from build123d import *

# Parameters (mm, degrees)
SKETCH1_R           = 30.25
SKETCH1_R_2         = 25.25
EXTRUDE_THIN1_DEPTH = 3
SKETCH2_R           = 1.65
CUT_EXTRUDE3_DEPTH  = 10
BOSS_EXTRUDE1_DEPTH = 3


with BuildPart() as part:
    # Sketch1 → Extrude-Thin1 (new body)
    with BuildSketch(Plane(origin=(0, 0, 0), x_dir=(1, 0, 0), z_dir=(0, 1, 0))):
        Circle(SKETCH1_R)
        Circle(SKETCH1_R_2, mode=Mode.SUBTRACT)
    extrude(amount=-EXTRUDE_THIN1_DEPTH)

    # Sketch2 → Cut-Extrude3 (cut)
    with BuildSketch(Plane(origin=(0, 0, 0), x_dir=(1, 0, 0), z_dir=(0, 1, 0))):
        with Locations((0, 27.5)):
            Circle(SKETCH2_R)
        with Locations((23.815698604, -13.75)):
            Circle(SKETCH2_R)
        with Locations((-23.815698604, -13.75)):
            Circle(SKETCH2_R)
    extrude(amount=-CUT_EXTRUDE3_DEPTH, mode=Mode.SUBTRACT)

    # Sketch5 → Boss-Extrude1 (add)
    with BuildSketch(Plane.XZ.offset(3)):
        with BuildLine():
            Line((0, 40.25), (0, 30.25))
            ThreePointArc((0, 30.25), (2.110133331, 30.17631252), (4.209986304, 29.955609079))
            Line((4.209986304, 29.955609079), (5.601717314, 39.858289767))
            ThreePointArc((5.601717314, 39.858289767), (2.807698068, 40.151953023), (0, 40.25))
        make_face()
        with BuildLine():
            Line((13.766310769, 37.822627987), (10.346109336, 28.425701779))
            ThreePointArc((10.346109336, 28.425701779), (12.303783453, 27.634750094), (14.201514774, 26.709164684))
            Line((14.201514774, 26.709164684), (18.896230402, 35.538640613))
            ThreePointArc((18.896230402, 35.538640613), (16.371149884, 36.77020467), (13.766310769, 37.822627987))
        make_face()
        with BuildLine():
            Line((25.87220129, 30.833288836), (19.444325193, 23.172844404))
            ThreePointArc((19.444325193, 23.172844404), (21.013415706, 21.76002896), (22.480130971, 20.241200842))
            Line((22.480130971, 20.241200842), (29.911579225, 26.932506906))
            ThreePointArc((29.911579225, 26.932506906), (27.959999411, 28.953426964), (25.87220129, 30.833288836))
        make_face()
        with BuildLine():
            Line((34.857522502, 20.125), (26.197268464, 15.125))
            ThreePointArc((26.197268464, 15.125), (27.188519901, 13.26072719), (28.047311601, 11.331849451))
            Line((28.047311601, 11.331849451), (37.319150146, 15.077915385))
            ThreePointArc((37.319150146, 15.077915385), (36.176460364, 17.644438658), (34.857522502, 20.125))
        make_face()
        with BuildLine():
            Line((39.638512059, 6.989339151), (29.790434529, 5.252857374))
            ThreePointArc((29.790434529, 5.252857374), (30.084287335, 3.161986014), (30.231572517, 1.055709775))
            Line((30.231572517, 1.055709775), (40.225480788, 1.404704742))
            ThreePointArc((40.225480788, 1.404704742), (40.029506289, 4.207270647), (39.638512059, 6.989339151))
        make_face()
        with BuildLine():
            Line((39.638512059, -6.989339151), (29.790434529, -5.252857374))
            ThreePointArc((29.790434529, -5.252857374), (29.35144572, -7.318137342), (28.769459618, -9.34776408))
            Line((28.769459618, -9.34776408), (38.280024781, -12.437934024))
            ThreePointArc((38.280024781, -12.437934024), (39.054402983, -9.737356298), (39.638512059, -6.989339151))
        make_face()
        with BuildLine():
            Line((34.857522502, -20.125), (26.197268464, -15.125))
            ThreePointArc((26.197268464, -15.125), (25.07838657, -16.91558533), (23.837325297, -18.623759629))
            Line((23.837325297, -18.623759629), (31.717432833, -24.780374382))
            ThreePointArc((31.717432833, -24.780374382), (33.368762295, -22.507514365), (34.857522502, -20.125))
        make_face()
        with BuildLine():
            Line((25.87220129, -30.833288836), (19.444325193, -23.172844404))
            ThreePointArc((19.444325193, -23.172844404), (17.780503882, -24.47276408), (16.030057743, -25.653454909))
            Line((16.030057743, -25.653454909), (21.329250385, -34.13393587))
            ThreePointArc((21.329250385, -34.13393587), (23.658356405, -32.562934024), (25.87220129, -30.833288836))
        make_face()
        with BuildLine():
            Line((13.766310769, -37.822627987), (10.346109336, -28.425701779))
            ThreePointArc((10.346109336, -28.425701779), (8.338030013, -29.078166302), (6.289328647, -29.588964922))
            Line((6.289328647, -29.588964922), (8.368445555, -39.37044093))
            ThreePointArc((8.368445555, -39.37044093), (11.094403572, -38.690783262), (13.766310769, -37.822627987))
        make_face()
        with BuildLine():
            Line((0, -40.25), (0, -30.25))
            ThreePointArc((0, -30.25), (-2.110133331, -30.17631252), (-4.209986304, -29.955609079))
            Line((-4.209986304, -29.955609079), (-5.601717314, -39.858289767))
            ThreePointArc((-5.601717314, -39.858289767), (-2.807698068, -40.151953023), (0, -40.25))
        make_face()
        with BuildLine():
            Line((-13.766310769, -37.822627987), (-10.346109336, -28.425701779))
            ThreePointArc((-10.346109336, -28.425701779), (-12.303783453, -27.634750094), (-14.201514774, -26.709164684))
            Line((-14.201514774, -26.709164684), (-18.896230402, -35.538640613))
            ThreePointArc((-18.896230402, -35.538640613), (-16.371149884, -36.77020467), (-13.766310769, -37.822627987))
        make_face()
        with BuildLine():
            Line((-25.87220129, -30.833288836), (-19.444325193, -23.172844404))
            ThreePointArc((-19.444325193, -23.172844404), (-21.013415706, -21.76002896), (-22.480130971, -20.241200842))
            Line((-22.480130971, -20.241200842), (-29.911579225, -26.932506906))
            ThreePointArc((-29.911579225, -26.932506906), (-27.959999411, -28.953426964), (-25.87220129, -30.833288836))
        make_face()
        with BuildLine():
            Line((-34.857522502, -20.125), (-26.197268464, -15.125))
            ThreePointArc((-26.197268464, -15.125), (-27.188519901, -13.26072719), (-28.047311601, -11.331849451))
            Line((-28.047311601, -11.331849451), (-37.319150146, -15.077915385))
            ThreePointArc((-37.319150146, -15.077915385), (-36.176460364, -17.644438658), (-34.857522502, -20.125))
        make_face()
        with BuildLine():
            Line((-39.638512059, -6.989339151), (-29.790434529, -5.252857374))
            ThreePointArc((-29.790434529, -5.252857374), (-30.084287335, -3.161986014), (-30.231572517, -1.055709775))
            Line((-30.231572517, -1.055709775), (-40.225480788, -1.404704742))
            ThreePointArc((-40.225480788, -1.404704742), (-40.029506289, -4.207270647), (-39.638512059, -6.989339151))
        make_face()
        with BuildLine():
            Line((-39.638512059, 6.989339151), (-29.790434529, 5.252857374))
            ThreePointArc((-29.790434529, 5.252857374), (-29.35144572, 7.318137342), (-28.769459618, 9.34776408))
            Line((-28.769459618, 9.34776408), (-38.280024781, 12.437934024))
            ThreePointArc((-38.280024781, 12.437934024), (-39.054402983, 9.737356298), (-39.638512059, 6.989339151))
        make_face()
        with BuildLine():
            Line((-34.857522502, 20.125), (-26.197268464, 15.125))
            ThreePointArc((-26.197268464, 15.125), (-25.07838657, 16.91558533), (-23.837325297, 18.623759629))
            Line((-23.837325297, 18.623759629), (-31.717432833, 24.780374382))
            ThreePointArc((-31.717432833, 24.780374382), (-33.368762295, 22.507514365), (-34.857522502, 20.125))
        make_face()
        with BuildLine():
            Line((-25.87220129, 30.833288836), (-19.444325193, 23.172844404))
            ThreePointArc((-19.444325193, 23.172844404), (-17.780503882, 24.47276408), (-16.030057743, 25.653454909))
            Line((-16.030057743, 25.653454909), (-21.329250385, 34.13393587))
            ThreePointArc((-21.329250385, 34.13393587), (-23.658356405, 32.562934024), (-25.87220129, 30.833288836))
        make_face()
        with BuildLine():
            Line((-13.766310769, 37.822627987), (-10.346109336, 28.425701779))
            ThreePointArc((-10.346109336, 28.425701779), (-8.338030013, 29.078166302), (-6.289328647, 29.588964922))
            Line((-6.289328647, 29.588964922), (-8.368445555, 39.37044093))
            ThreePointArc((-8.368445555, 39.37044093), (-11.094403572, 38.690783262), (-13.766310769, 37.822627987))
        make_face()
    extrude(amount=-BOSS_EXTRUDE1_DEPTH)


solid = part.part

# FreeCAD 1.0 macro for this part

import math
import FreeCAD as App
import Part
import Sketcher
from FreeCAD import Vector
Q = App.Units.Quantity

doc = App.newDocument("Part")
body = doc.addObject("PartDesign::Body", "Body")

sketch1 = doc.addObject("Sketcher::SketchObject", "Sketch")
body.addObject(sketch1)
sketch1.AttachmentSupport = (doc.XZ_Plane, [""])
sketch1.MapMode = "FlatFace"
sketch1.addGeometry(Part.Circle(Vector(0, 0, 0), Vector(0, 0, 1), 30.25), False)
sketch1.addGeometry(Part.Circle(Vector(0, 0, 0), Vector(0, 0, 1), 25.25), False)
sketch1.addConstraint(Sketcher.Constraint("Coincident", 0, 3, -1, 1))
sketch1.addConstraint(Sketcher.Constraint("Coincident", 1, 3, -1, 1))
sketch1.addConstraint(Sketcher.Constraint("Diameter", 0, 60.5))
sketch1.addConstraint(Sketcher.Constraint("Diameter", 1, 50.5))
pad1 = doc.addObject("PartDesign::Pad", "Pad")
body.addObject(pad1)
pad1.Profile = sketch1
pad1.Length = 3

sketch2 = doc.addObject("Sketcher::SketchObject", "Sketch001")
body.addObject(sketch2)
sketch2.AttachmentSupport = (doc.XZ_Plane, [""])
sketch2.MapMode = "FlatFace"
sketch2.addGeometry(Part.Circle(Vector(0, -27.5, 0), Vector(0, 0, 1), 1.65), False)
sketch2.addGeometry(Part.Circle(Vector(23.815699, 13.75, 0), Vector(0, 0, 1), 1.65), False)
sketch2.addGeometry(Part.Circle(Vector(-23.815699, 13.75, 0), Vector(0, 0, 1), 1.65), False)
sketch2.addConstraint(Sketcher.Constraint("Equal", 0, 1))
sketch2.addConstraint(Sketcher.Constraint("Equal", 1, 2))
sketch2.addConstraint(Sketcher.Constraint("Symmetric", 1, 3, 2, 3, -2))
sketch2.addConstraint(Sketcher.Constraint("PointOnObject", 0, 3, -2))
sketch2.addConstraint(Sketcher.Constraint("Diameter", 0, 3.3))
sketch2.addConstraint(Sketcher.Constraint("DistanceY", 0, 3, -1, 1, 27.5))
sketch2.addConstraint(Sketcher.Constraint("DistanceY", -1, 1, 1, 3, 13.75))
sketch2.addConstraint(Sketcher.Constraint("DistanceX", -1, 1, 1, 3, 23.815699))
pocket1 = doc.addObject("PartDesign::Pocket", "Pocket")
body.addObject(pocket1)
pocket1.Profile = sketch2
pocket1.Length = 10
pocket1.Reversed = True

sketch3 = doc.addObject("Sketcher::SketchObject", "Sketch002")
body.addObject(sketch3)
sketch3.AttachmentSupport = (doc.XZ_Plane, [""])
sketch3.MapMode = "FlatFace"
sketch3.AttachmentOffset = App.Placement(Vector(0, 0, 3), App.Rotation())
sketch3.addGeometry(Part.LineSegment(Vector(0, 40.25, 0), Vector(0, 30.25, 0)), False)
sketch3.addGeometry(Part.ArcOfCircle(Part.Circle(Vector(0, 0, 0), Vector(0, 0, 1), 30.25), math.radians(82), math.radians(90)), False)
sketch3.addGeometry(Part.LineSegment(Vector(4.209986, 29.955609, 0), Vector(5.601717, 39.85829, 0)), False)
sketch3.addGeometry(Part.ArcOfCircle(Part.Circle(Vector(0, 0, 0), Vector(0, 0, 1), 40.25), math.radians(82), math.radians(90)), False)
sketch3.addGeometry(Part.LineSegment(Vector(13.766311, 37.822628, 0), Vector(10.346109, 28.425702, 0)), False)
sketch3.addGeometry(Part.ArcOfCircle(Part.Circle(Vector(0, 0, 0), Vector(0, 0, 1), 30.25), math.radians(62), math.radians(70)), False)
sketch3.addGeometry(Part.LineSegment(Vector(14.201515, 26.709165, 0), Vector(18.89623, 35.538641, 0)), False)
sketch3.addGeometry(Part.ArcOfCircle(Part.Circle(Vector(0, 0, 0), Vector(0, 0, 1), 40.25), math.radians(62), math.radians(70)), False)
sketch3.addGeometry(Part.LineSegment(Vector(25.872201, 30.833289, 0), Vector(19.444325, 23.172844, 0)), False)
sketch3.addGeometry(Part.ArcOfCircle(Part.Circle(Vector(0, 0, 0), Vector(0, 0, 1), 30.25), math.radians(42), math.radians(50)), False)
sketch3.addGeometry(Part.LineSegment(Vector(22.480131, 20.241201, 0), Vector(29.911579, 26.932507, 0)), False)
sketch3.addGeometry(Part.ArcOfCircle(Part.Circle(Vector(0, 0, 0), Vector(0, 0, 1), 40.25), math.radians(42), math.radians(50)), False)
sketch3.addGeometry(Part.LineSegment(Vector(34.857523, 20.125, 0), Vector(26.197268, 15.125, 0)), False)
sketch3.addGeometry(Part.ArcOfCircle(Part.Circle(Vector(0, 0, 0), Vector(0, 0, 1), 30.25), math.radians(22), math.radians(30)), False)
sketch3.addGeometry(Part.LineSegment(Vector(28.047312, 11.331849, 0), Vector(37.31915, 15.077915, 0)), False)
sketch3.addGeometry(Part.ArcOfCircle(Part.Circle(Vector(0, 0, 0), Vector(0, 0, 1), 40.25), math.radians(22), math.radians(30)), False)
sketch3.addGeometry(Part.LineSegment(Vector(39.638512, 6.989339, 0), Vector(29.790435, 5.252857, 0)), False)
sketch3.addGeometry(Part.ArcOfCircle(Part.Circle(Vector(0, 0, 0), Vector(0, 0, 1), 30.25), math.radians(2), math.radians(10)), False)
sketch3.addGeometry(Part.LineSegment(Vector(30.231573, 1.05571, 0), Vector(40.225481, 1.404705, 0)), False)
sketch3.addGeometry(Part.ArcOfCircle(Part.Circle(Vector(0, 0, 0), Vector(0, 0, 1), 40.25), math.radians(2), math.radians(10)), False)
sketch3.addGeometry(Part.LineSegment(Vector(39.638512, -6.989339, 0), Vector(29.790435, -5.252857, 0)), False)
sketch3.addGeometry(Part.ArcOfCircle(Part.Circle(Vector(0, 0, 0), Vector(0, 0, 1), 30.25), math.radians(-18), math.radians(-10)), False)
sketch3.addGeometry(Part.LineSegment(Vector(28.76946, -9.347764, 0), Vector(38.280025, -12.437934, 0)), False)
sketch3.addGeometry(Part.ArcOfCircle(Part.Circle(Vector(0, 0, 0), Vector(0, 0, 1), 40.25), math.radians(-18), math.radians(-10)), False)
sketch3.addGeometry(Part.LineSegment(Vector(34.857523, -20.125, 0), Vector(26.197268, -15.125, 0)), False)
sketch3.addGeometry(Part.ArcOfCircle(Part.Circle(Vector(0, 0, 0), Vector(0, 0, 1), 30.25), math.radians(-38), math.radians(-30)), False)
sketch3.addGeometry(Part.LineSegment(Vector(23.837325, -18.62376, 0), Vector(31.717433, -24.780374, 0)), False)
sketch3.addGeometry(Part.ArcOfCircle(Part.Circle(Vector(0, 0, 0), Vector(0, 0, 1), 40.25), math.radians(-38), math.radians(-30)), False)
sketch3.addGeometry(Part.LineSegment(Vector(25.872201, -30.833289, 0), Vector(19.444325, -23.172844, 0)), False)
sketch3.addGeometry(Part.ArcOfCircle(Part.Circle(Vector(0, 0, 0), Vector(0, 0, 1), 30.25), math.radians(-58), math.radians(-50)), False)
sketch3.addGeometry(Part.LineSegment(Vector(16.030058, -25.653455, 0), Vector(21.32925, -34.133936, 0)), False)
sketch3.addGeometry(Part.ArcOfCircle(Part.Circle(Vector(0, 0, 0), Vector(0, 0, 1), 40.25), math.radians(-58), math.radians(-50)), False)
sketch3.addGeometry(Part.LineSegment(Vector(13.766311, -37.822628, 0), Vector(10.346109, -28.425702, 0)), False)
sketch3.addGeometry(Part.ArcOfCircle(Part.Circle(Vector(0, 0, 0), Vector(0, 0, 1), 30.25), math.radians(-78), math.radians(-70)), False)
sketch3.addGeometry(Part.LineSegment(Vector(6.289329, -29.588965, 0), Vector(8.368446, -39.370441, 0)), False)
sketch3.addGeometry(Part.ArcOfCircle(Part.Circle(Vector(0, 0, 0), Vector(0, 0, 1), 40.25), math.radians(-78), math.radians(-70)), False)
sketch3.addGeometry(Part.LineSegment(Vector(0, -40.25, 0), Vector(0, -30.25, 0)), False)
sketch3.addGeometry(Part.ArcOfCircle(Part.Circle(Vector(0, 0, 0), Vector(0, 0, 1), 30.25), math.radians(-98), math.radians(-90)), False)
sketch3.addGeometry(Part.LineSegment(Vector(-4.209986, -29.955609, 0), Vector(-5.601717, -39.85829, 0)), False)
sketch3.addGeometry(Part.ArcOfCircle(Part.Circle(Vector(0, 0, 0), Vector(0, 0, 1), 40.25), math.radians(-98), math.radians(-90)), False)
sketch3.addGeometry(Part.LineSegment(Vector(-13.766311, -37.822628, 0), Vector(-10.346109, -28.425702, 0)), False)
sketch3.addGeometry(Part.ArcOfCircle(Part.Circle(Vector(0, 0, 0), Vector(0, 0, 1), 30.25), math.radians(-118), math.radians(-110)), False)
sketch3.addGeometry(Part.LineSegment(Vector(-14.201515, -26.709165, 0), Vector(-18.89623, -35.538641, 0)), False)
sketch3.addGeometry(Part.ArcOfCircle(Part.Circle(Vector(0, 0, 0), Vector(0, 0, 1), 40.25), math.radians(-118), math.radians(-110)), False)
sketch3.addGeometry(Part.LineSegment(Vector(-25.872201, -30.833289, 0), Vector(-19.444325, -23.172844, 0)), False)
sketch3.addGeometry(Part.ArcOfCircle(Part.Circle(Vector(0, 0, 0), Vector(0, 0, 1), 30.25), math.radians(-138), math.radians(-130)), False)
sketch3.addGeometry(Part.LineSegment(Vector(-22.480131, -20.241201, 0), Vector(-29.911579, -26.932507, 0)), False)
sketch3.addGeometry(Part.ArcOfCircle(Part.Circle(Vector(0, 0, 0), Vector(0, 0, 1), 40.25), math.radians(-138), math.radians(-130)), False)
sketch3.addGeometry(Part.LineSegment(Vector(-34.857523, -20.125, 0), Vector(-26.197268, -15.125, 0)), False)
sketch3.addGeometry(Part.ArcOfCircle(Part.Circle(Vector(0, 0, 0), Vector(0, 0, 1), 30.25), math.radians(-158), math.radians(-150)), False)
sketch3.addGeometry(Part.LineSegment(Vector(-28.047312, -11.331849, 0), Vector(-37.31915, -15.077915, 0)), False)
sketch3.addGeometry(Part.ArcOfCircle(Part.Circle(Vector(0, 0, 0), Vector(0, 0, 1), 40.25), math.radians(-158), math.radians(-150)), False)
sketch3.addGeometry(Part.LineSegment(Vector(-39.638512, -6.989339, 0), Vector(-29.790435, -5.252857, 0)), False)
sketch3.addGeometry(Part.ArcOfCircle(Part.Circle(Vector(0, 0, 0), Vector(0, 0, 1), 30.25), math.radians(-178), math.radians(-170)), False)
sketch3.addGeometry(Part.LineSegment(Vector(-30.231573, -1.05571, 0), Vector(-40.225481, -1.404705, 0)), False)
sketch3.addGeometry(Part.ArcOfCircle(Part.Circle(Vector(0, 0, 0), Vector(0, 0, 1), 40.25), math.radians(-178), math.radians(-170)), False)
sketch3.addGeometry(Part.LineSegment(Vector(-39.638512, 6.989339, 0), Vector(-29.790435, 5.252857, 0)), False)
sketch3.addGeometry(Part.ArcOfCircle(Part.Circle(Vector(0, 0, 0), Vector(0, 0, 1), 30.25), math.radians(162), math.radians(170)), False)
sketch3.addGeometry(Part.LineSegment(Vector(-28.76946, 9.347764, 0), Vector(-38.280025, 12.437934, 0)), False)
sketch3.addGeometry(Part.ArcOfCircle(Part.Circle(Vector(0, 0, 0), Vector(0, 0, 1), 40.25), math.radians(162), math.radians(170)), False)
sketch3.addGeometry(Part.LineSegment(Vector(-34.857523, 20.125, 0), Vector(-26.197268, 15.125, 0)), False)
sketch3.addGeometry(Part.ArcOfCircle(Part.Circle(Vector(0, 0, 0), Vector(0, 0, 1), 30.25), math.radians(142), math.radians(150)), False)
sketch3.addGeometry(Part.LineSegment(Vector(-23.837325, 18.62376, 0), Vector(-31.717433, 24.780374, 0)), False)
sketch3.addGeometry(Part.ArcOfCircle(Part.Circle(Vector(0, 0, 0), Vector(0, 0, 1), 40.25), math.radians(142), math.radians(150)), False)
sketch3.addGeometry(Part.LineSegment(Vector(-25.872201, 30.833289, 0), Vector(-19.444325, 23.172844, 0)), False)
sketch3.addGeometry(Part.ArcOfCircle(Part.Circle(Vector(0, 0, 0), Vector(0, 0, 1), 30.25), math.radians(122), math.radians(130)), False)
sketch3.addGeometry(Part.LineSegment(Vector(-16.030058, 25.653455, 0), Vector(-21.32925, 34.133936, 0)), False)
sketch3.addGeometry(Part.ArcOfCircle(Part.Circle(Vector(0, 0, 0), Vector(0, 0, 1), 40.25), math.radians(122), math.radians(130)), False)
sketch3.addGeometry(Part.LineSegment(Vector(-13.766311, 37.822628, 0), Vector(-10.346109, 28.425702, 0)), False)
sketch3.addGeometry(Part.ArcOfCircle(Part.Circle(Vector(0, 0, 0), Vector(0, 0, 1), 30.25), math.radians(102), math.radians(110)), False)
sketch3.addGeometry(Part.LineSegment(Vector(-6.289329, 29.588965, 0), Vector(-8.368446, 39.370441, 0)), False)
sketch3.addGeometry(Part.ArcOfCircle(Part.Circle(Vector(0, 0, 0), Vector(0, 0, 1), 40.25), math.radians(102), math.radians(110)), False)
sketch3.addConstraint(Sketcher.Constraint("Coincident", 0, 2, 1, 2))
sketch3.addConstraint(Sketcher.Constraint("Coincident", 1, 1, 2, 1))
sketch3.addConstraint(Sketcher.Constraint("Coincident", 2, 2, 3, 1))
sketch3.addConstraint(Sketcher.Constraint("Coincident", 3, 2, 0, 1))
sketch3.addConstraint(Sketcher.Constraint("Coincident", 4, 2, 5, 2))
sketch3.addConstraint(Sketcher.Constraint("Coincident", 5, 1, 6, 1))
sketch3.addConstraint(Sketcher.Constraint("Coincident", 6, 2, 7, 1))
sketch3.addConstraint(Sketcher.Constraint("Coincident", 7, 2, 4, 1))
sketch3.addConstraint(Sketcher.Constraint("Coincident", 8, 2, 9, 2))
sketch3.addConstraint(Sketcher.Constraint("Coincident", 9, 1, 10, 1))
sketch3.addConstraint(Sketcher.Constraint("Coincident", 10, 2, 11, 1))
sketch3.addConstraint(Sketcher.Constraint("Coincident", 11, 2, 8, 1))
sketch3.addConstraint(Sketcher.Constraint("Coincident", 12, 2, 13, 2))
sketch3.addConstraint(Sketcher.Constraint("Coincident", 13, 1, 14, 1))
sketch3.addConstraint(Sketcher.Constraint("Coincident", 14, 2, 15, 1))
sketch3.addConstraint(Sketcher.Constraint("Coincident", 15, 2, 12, 1))
sketch3.addConstraint(Sketcher.Constraint("Coincident", 16, 2, 17, 2))
sketch3.addConstraint(Sketcher.Constraint("Coincident", 17, 1, 18, 1))
sketch3.addConstraint(Sketcher.Constraint("Coincident", 18, 2, 19, 1))
sketch3.addConstraint(Sketcher.Constraint("Coincident", 19, 2, 16, 1))
sketch3.addConstraint(Sketcher.Constraint("Coincident", 20, 2, 21, 2))
sketch3.addConstraint(Sketcher.Constraint("Coincident", 21, 1, 22, 1))
sketch3.addConstraint(Sketcher.Constraint("Coincident", 22, 2, 23, 1))
sketch3.addConstraint(Sketcher.Constraint("Coincident", 23, 2, 20, 1))
sketch3.addConstraint(Sketcher.Constraint("Coincident", 24, 2, 25, 2))
sketch3.addConstraint(Sketcher.Constraint("Coincident", 25, 1, 26, 1))
sketch3.addConstraint(Sketcher.Constraint("Coincident", 26, 2, 27, 1))
sketch3.addConstraint(Sketcher.Constraint("Coincident", 27, 2, 24, 1))
sketch3.addConstraint(Sketcher.Constraint("Coincident", 28, 2, 29, 2))
sketch3.addConstraint(Sketcher.Constraint("Coincident", 29, 1, 30, 1))
sketch3.addConstraint(Sketcher.Constraint("Coincident", 30, 2, 31, 1))
sketch3.addConstraint(Sketcher.Constraint("Coincident", 31, 2, 28, 1))
sketch3.addConstraint(Sketcher.Constraint("Coincident", 32, 2, 33, 2))
sketch3.addConstraint(Sketcher.Constraint("Coincident", 33, 1, 34, 1))
sketch3.addConstraint(Sketcher.Constraint("Coincident", 34, 2, 35, 1))
sketch3.addConstraint(Sketcher.Constraint("Coincident", 35, 2, 32, 1))
sketch3.addConstraint(Sketcher.Constraint("Coincident", 36, 2, 37, 2))
sketch3.addConstraint(Sketcher.Constraint("Coincident", 37, 1, 38, 1))
sketch3.addConstraint(Sketcher.Constraint("Coincident", 38, 2, 39, 1))
sketch3.addConstraint(Sketcher.Constraint("Coincident", 39, 2, 36, 1))
sketch3.addConstraint(Sketcher.Constraint("Coincident", 40, 2, 41, 2))
sketch3.addConstraint(Sketcher.Constraint("Coincident", 41, 1, 42, 1))
sketch3.addConstraint(Sketcher.Constraint("Coincident", 42, 2, 43, 1))
sketch3.addConstraint(Sketcher.Constraint("Coincident", 43, 2, 40, 1))
sketch3.addConstraint(Sketcher.Constraint("Coincident", 44, 2, 45, 2))
sketch3.addConstraint(Sketcher.Constraint("Coincident", 45, 1, 46, 1))
sketch3.addConstraint(Sketcher.Constraint("Coincident", 46, 2, 47, 1))
sketch3.addConstraint(Sketcher.Constraint("Coincident", 47, 2, 44, 1))
sketch3.addConstraint(Sketcher.Constraint("Coincident", 48, 2, 49, 2))
sketch3.addConstraint(Sketcher.Constraint("Coincident", 49, 1, 50, 1))
sketch3.addConstraint(Sketcher.Constraint("Coincident", 50, 2, 51, 1))
sketch3.addConstraint(Sketcher.Constraint("Coincident", 51, 2, 48, 1))
sketch3.addConstraint(Sketcher.Constraint("Coincident", 52, 2, 53, 2))
sketch3.addConstraint(Sketcher.Constraint("Coincident", 53, 1, 54, 1))
sketch3.addConstraint(Sketcher.Constraint("Coincident", 54, 2, 55, 1))
sketch3.addConstraint(Sketcher.Constraint("Coincident", 55, 2, 52, 1))
sketch3.addConstraint(Sketcher.Constraint("Coincident", 56, 2, 57, 2))
sketch3.addConstraint(Sketcher.Constraint("Coincident", 57, 1, 58, 1))
sketch3.addConstraint(Sketcher.Constraint("Coincident", 58, 2, 59, 1))
sketch3.addConstraint(Sketcher.Constraint("Coincident", 59, 2, 56, 1))
sketch3.addConstraint(Sketcher.Constraint("Coincident", 60, 2, 61, 2))
sketch3.addConstraint(Sketcher.Constraint("Coincident", 61, 1, 62, 1))
sketch3.addConstraint(Sketcher.Constraint("Coincident", 62, 2, 63, 1))
sketch3.addConstraint(Sketcher.Constraint("Coincident", 63, 2, 60, 1))
sketch3.addConstraint(Sketcher.Constraint("Coincident", 64, 2, 65, 2))
sketch3.addConstraint(Sketcher.Constraint("Coincident", 65, 1, 66, 1))
sketch3.addConstraint(Sketcher.Constraint("Coincident", 66, 2, 67, 1))
sketch3.addConstraint(Sketcher.Constraint("Coincident", 67, 2, 64, 1))
sketch3.addConstraint(Sketcher.Constraint("Coincident", 68, 2, 69, 2))
sketch3.addConstraint(Sketcher.Constraint("Coincident", 69, 1, 70, 1))
sketch3.addConstraint(Sketcher.Constraint("Coincident", 70, 2, 71, 1))
sketch3.addConstraint(Sketcher.Constraint("Coincident", 71, 2, 68, 1))
sketch3.addConstraint(Sketcher.Constraint("Vertical", 0))
sketch3.addConstraint(Sketcher.Constraint("Vertical", 36))
sketch3.addConstraint(Sketcher.Constraint("Coincident", 1, 3, -1, 1))
sketch3.addConstraint(Sketcher.Constraint("Coincident", 3, 3, -1, 1))
sketch3.addConstraint(Sketcher.Constraint("Coincident", 5, 3, -1, 1))
sketch3.addConstraint(Sketcher.Constraint("Coincident", 7, 3, -1, 1))
sketch3.addConstraint(Sketcher.Constraint("Coincident", 9, 3, -1, 1))
sketch3.addConstraint(Sketcher.Constraint("Coincident", 11, 3, -1, 1))
sketch3.addConstraint(Sketcher.Constraint("Coincident", 13, 3, -1, 1))
sketch3.addConstraint(Sketcher.Constraint("Coincident", 15, 3, -1, 1))
sketch3.addConstraint(Sketcher.Constraint("Coincident", 17, 3, -1, 1))
sketch3.addConstraint(Sketcher.Constraint("Coincident", 19, 3, -1, 1))
sketch3.addConstraint(Sketcher.Constraint("Coincident", 21, 3, -1, 1))
sketch3.addConstraint(Sketcher.Constraint("Coincident", 23, 3, -1, 1))
sketch3.addConstraint(Sketcher.Constraint("Coincident", 25, 3, -1, 1))
sketch3.addConstraint(Sketcher.Constraint("Coincident", 27, 3, -1, 1))
sketch3.addConstraint(Sketcher.Constraint("Coincident", 29, 3, -1, 1))
sketch3.addConstraint(Sketcher.Constraint("Coincident", 31, 3, -1, 1))
sketch3.addConstraint(Sketcher.Constraint("Coincident", 33, 3, -1, 1))
sketch3.addConstraint(Sketcher.Constraint("Coincident", 35, 3, -1, 1))
sketch3.addConstraint(Sketcher.Constraint("Coincident", 37, 3, -1, 1))
sketch3.addConstraint(Sketcher.Constraint("Coincident", 39, 3, -1, 1))
sketch3.addConstraint(Sketcher.Constraint("Coincident", 41, 3, -1, 1))
sketch3.addConstraint(Sketcher.Constraint("Coincident", 43, 3, -1, 1))
sketch3.addConstraint(Sketcher.Constraint("Coincident", 45, 3, -1, 1))
sketch3.addConstraint(Sketcher.Constraint("Coincident", 47, 3, -1, 1))
sketch3.addConstraint(Sketcher.Constraint("Coincident", 49, 3, -1, 1))
sketch3.addConstraint(Sketcher.Constraint("Coincident", 51, 3, -1, 1))
sketch3.addConstraint(Sketcher.Constraint("Coincident", 53, 3, -1, 1))
sketch3.addConstraint(Sketcher.Constraint("Coincident", 55, 3, -1, 1))
sketch3.addConstraint(Sketcher.Constraint("Coincident", 57, 3, -1, 1))
sketch3.addConstraint(Sketcher.Constraint("Coincident", 59, 3, -1, 1))
sketch3.addConstraint(Sketcher.Constraint("Coincident", 61, 3, -1, 1))
sketch3.addConstraint(Sketcher.Constraint("Coincident", 63, 3, -1, 1))
sketch3.addConstraint(Sketcher.Constraint("Coincident", 65, 3, -1, 1))
sketch3.addConstraint(Sketcher.Constraint("Coincident", 67, 3, -1, 1))
sketch3.addConstraint(Sketcher.Constraint("Coincident", 69, 3, -1, 1))
sketch3.addConstraint(Sketcher.Constraint("Coincident", 71, 3, -1, 1))
sketch3.addConstraint(Sketcher.Constraint("Equal", 1, 5))
sketch3.addConstraint(Sketcher.Constraint("Equal", 3, 7))
sketch3.addConstraint(Sketcher.Constraint("Equal", 5, 9))
sketch3.addConstraint(Sketcher.Constraint("Equal", 7, 11))
sketch3.addConstraint(Sketcher.Constraint("Equal", 9, 13))
sketch3.addConstraint(Sketcher.Constraint("Equal", 11, 15))
sketch3.addConstraint(Sketcher.Constraint("Equal", 13, 17))
sketch3.addConstraint(Sketcher.Constraint("Equal", 15, 19))
sketch3.addConstraint(Sketcher.Constraint("Equal", 17, 21))
sketch3.addConstraint(Sketcher.Constraint("Equal", 19, 23))
sketch3.addConstraint(Sketcher.Constraint("Equal", 21, 25))
sketch3.addConstraint(Sketcher.Constraint("Equal", 23, 27))
sketch3.addConstraint(Sketcher.Constraint("Equal", 25, 29))
sketch3.addConstraint(Sketcher.Constraint("Equal", 27, 31))
sketch3.addConstraint(Sketcher.Constraint("Equal", 29, 33))
sketch3.addConstraint(Sketcher.Constraint("Equal", 31, 35))
sketch3.addConstraint(Sketcher.Constraint("Equal", 33, 37))
sketch3.addConstraint(Sketcher.Constraint("Equal", 35, 39))
sketch3.addConstraint(Sketcher.Constraint("Equal", 37, 41))
sketch3.addConstraint(Sketcher.Constraint("Equal", 39, 43))
sketch3.addConstraint(Sketcher.Constraint("Equal", 41, 45))
sketch3.addConstraint(Sketcher.Constraint("Equal", 43, 47))
sketch3.addConstraint(Sketcher.Constraint("Equal", 45, 49))
sketch3.addConstraint(Sketcher.Constraint("Equal", 47, 51))
sketch3.addConstraint(Sketcher.Constraint("Equal", 49, 53))
sketch3.addConstraint(Sketcher.Constraint("Equal", 51, 55))
sketch3.addConstraint(Sketcher.Constraint("Equal", 53, 57))
sketch3.addConstraint(Sketcher.Constraint("Equal", 55, 59))
sketch3.addConstraint(Sketcher.Constraint("Equal", 57, 61))
sketch3.addConstraint(Sketcher.Constraint("Equal", 59, 63))
sketch3.addConstraint(Sketcher.Constraint("Equal", 61, 65))
sketch3.addConstraint(Sketcher.Constraint("Equal", 63, 67))
sketch3.addConstraint(Sketcher.Constraint("Equal", 65, 69))
sketch3.addConstraint(Sketcher.Constraint("Equal", 67, 71))
sketch3.addConstraint(Sketcher.Constraint("PointOnObject", 0, 2, -2))
sketch3.addConstraint(Sketcher.Constraint("PointOnObject", 36, 2, -2))
sketch3.addConstraint(Sketcher.Constraint("Parallel", 2, 38))
sketch3.addConstraint(Sketcher.Constraint("Parallel", 4, 40))
sketch3.addConstraint(Sketcher.Constraint("Parallel", 6, 42))
sketch3.addConstraint(Sketcher.Constraint("Parallel", 8, 44))
sketch3.addConstraint(Sketcher.Constraint("Parallel", 10, 46))
sketch3.addConstraint(Sketcher.Constraint("Parallel", 12, 48))
sketch3.addConstraint(Sketcher.Constraint("Parallel", 14, 50))
sketch3.addConstraint(Sketcher.Constraint("Parallel", 16, 52))
sketch3.addConstraint(Sketcher.Constraint("Parallel", 18, 54))
sketch3.addConstraint(Sketcher.Constraint("Parallel", 20, 56))
sketch3.addConstraint(Sketcher.Constraint("Parallel", 22, 58))
sketch3.addConstraint(Sketcher.Constraint("Parallel", 24, 60))
sketch3.addConstraint(Sketcher.Constraint("Parallel", 26, 62))
sketch3.addConstraint(Sketcher.Constraint("Parallel", 28, 64))
sketch3.addConstraint(Sketcher.Constraint("Parallel", 30, 66))
sketch3.addConstraint(Sketcher.Constraint("Parallel", 32, 68))
sketch3.addConstraint(Sketcher.Constraint("Parallel", 34, 70))
sketch3.addConstraint(Sketcher.Constraint("Horizontal", 32, 2, 40, 2))
sketch3.addConstraint(Sketcher.Constraint("Horizontal", 35, 2, 43, 2))
sketch3.addConstraint(Sketcher.Constraint("Horizontal", 28, 2, 44, 2))
sketch3.addConstraint(Sketcher.Constraint("Horizontal", 31, 2, 47, 2))
sketch3.addConstraint(Sketcher.Constraint("Horizontal", 24, 2, 48, 2))
sketch3.addConstraint(Sketcher.Constraint("Horizontal", 27, 2, 51, 2))
sketch3.addConstraint(Sketcher.Constraint("Horizontal", 20, 2, 52, 2))
sketch3.addConstraint(Sketcher.Constraint("Horizontal", 23, 2, 55, 2))
sketch3.addConstraint(Sketcher.Constraint("Horizontal", 16, 2, 56, 2))
sketch3.addConstraint(Sketcher.Constraint("Horizontal", 12, 2, 60, 2))
sketch3.addConstraint(Sketcher.Constraint("Horizontal", 8, 2, 64, 2))
sketch3.addConstraint(Sketcher.Constraint("Horizontal", 4, 2, 68, 2))
sketch3.addConstraint(Sketcher.Constraint("Vertical", 16, 2, 20, 2))
sketch3.addConstraint(Sketcher.Constraint("Vertical", 12, 2, 24, 2))
sketch3.addConstraint(Sketcher.Constraint("Vertical", 8, 2, 28, 2))
sketch3.addConstraint(Sketcher.Constraint("Vertical", 4, 2, 32, 2))
sketch3.addConstraint(Sketcher.Constraint("DistanceY", 0, 2, 0, 1, 10.0))
sketch3.addConstraint(Sketcher.Constraint("Angle", 2, Q("82 deg")))
sketch3.addConstraint(Sketcher.Constraint("Angle", 4, Q("-110 deg")))
sketch3.addConstraint(Sketcher.Constraint("Angle", 6, Q("62 deg")))
sketch3.addConstraint(Sketcher.Constraint("Angle", 8, Q("-130 deg")))
sketch3.addConstraint(Sketcher.Constraint("Angle", 10, Q("42 deg")))
sketch3.addConstraint(Sketcher.Constraint("Angle", 12, Q("-150 deg")))
sketch3.addConstraint(Sketcher.Constraint("Angle", 14, Q("22 deg")))
sketch3.addConstraint(Sketcher.Constraint("Angle", 16, Q("-170 deg")))
sketch3.addConstraint(Sketcher.Constraint("Angle", 18, Q("2 deg")))
sketch3.addConstraint(Sketcher.Constraint("Angle", 22, Q("-18 deg")))
sketch3.addConstraint(Sketcher.Constraint("Angle", 26, Q("-38 deg")))
sketch3.addConstraint(Sketcher.Constraint("Angle", 30, Q("-58 deg")))
sketch3.addConstraint(Sketcher.Constraint("Angle", 34, Q("-78 deg")))
sketch3.addConstraint(Sketcher.Constraint("Radius", 1, 30.25))
sketch3.addConstraint(Sketcher.Constraint("DistanceY", -1, 1, 12, 2, 15.125))
sketch3.addConstraint(Sketcher.Constraint("DistanceY", -1, 1, 4, 2, 28.425702))
sketch3.addConstraint(Sketcher.Constraint("DistanceY", -1, 1, 9, 1, 20.241201))
sketch3.addConstraint(Sketcher.Constraint("DistanceX", -1, 1, 11, 2, 25.872201))
sketch3.addConstraint(Sketcher.Constraint("DistanceY", 45, 1, -1, 1, 20.241201))
sketch3.addConstraint(Sketcher.Constraint("DistanceY", -1, 1, 1, 1, 29.955609))
sketch3.addConstraint(Sketcher.Constraint("DistanceX", -1, 1, 6, 2, 18.89623))
sketch3.addConstraint(Sketcher.Constraint("DistanceX", -1, 1, 13, 1, 28.047312))
sketch3.addConstraint(Sketcher.Constraint("DistanceY", -1, 1, 17, 1, 1.05571))
sketch3.addConstraint(Sketcher.Constraint("DistanceY", -1, 1, 19, 2, 6.989339))
sketch3.addConstraint(Sketcher.Constraint("DistanceX", -1, 1, 21, 1, 28.76946))
sketch3.addConstraint(Sketcher.Constraint("DistanceY", 25, 1, -1, 1, 18.62376))
sketch3.addConstraint(Sketcher.Constraint("DistanceX", -1, 1, 30, 2, 21.32925))
sketch3.addConstraint(Sketcher.Constraint("DistanceX", -1, 1, 33, 1, 6.289329))
sketch3.addConstraint(Sketcher.Constraint("DistanceY", 37, 1, -1, 1, 29.955609))
sketch3.addConstraint(Sketcher.Constraint("DistanceX", 42, 2, -1, 1, 18.89623))
sketch3.addConstraint(Sketcher.Constraint("DistanceX", 49, 1, -1, 1, 28.047312))
sketch3.addConstraint(Sketcher.Constraint("DistanceY", 53, 1, -1, 1, 1.05571))
sketch3.addConstraint(Sketcher.Constraint("DistanceX", 57, 1, -1, 1, 28.76946))
sketch3.addConstraint(Sketcher.Constraint("DistanceY", -1, 1, 61, 1, 18.62376))
sketch3.addConstraint(Sketcher.Constraint("DistanceX", 66, 2, -1, 1, 21.32925))
sketch3.addConstraint(Sketcher.Constraint("DistanceX", 69, 1, -1, 1, 6.289329))
pad2 = doc.addObject("PartDesign::Pad", "Pad001")
body.addObject(pad2)
pad2.Profile = sketch3
pad2.Length = 3
pad2.Reversed = True

doc.recompute()
